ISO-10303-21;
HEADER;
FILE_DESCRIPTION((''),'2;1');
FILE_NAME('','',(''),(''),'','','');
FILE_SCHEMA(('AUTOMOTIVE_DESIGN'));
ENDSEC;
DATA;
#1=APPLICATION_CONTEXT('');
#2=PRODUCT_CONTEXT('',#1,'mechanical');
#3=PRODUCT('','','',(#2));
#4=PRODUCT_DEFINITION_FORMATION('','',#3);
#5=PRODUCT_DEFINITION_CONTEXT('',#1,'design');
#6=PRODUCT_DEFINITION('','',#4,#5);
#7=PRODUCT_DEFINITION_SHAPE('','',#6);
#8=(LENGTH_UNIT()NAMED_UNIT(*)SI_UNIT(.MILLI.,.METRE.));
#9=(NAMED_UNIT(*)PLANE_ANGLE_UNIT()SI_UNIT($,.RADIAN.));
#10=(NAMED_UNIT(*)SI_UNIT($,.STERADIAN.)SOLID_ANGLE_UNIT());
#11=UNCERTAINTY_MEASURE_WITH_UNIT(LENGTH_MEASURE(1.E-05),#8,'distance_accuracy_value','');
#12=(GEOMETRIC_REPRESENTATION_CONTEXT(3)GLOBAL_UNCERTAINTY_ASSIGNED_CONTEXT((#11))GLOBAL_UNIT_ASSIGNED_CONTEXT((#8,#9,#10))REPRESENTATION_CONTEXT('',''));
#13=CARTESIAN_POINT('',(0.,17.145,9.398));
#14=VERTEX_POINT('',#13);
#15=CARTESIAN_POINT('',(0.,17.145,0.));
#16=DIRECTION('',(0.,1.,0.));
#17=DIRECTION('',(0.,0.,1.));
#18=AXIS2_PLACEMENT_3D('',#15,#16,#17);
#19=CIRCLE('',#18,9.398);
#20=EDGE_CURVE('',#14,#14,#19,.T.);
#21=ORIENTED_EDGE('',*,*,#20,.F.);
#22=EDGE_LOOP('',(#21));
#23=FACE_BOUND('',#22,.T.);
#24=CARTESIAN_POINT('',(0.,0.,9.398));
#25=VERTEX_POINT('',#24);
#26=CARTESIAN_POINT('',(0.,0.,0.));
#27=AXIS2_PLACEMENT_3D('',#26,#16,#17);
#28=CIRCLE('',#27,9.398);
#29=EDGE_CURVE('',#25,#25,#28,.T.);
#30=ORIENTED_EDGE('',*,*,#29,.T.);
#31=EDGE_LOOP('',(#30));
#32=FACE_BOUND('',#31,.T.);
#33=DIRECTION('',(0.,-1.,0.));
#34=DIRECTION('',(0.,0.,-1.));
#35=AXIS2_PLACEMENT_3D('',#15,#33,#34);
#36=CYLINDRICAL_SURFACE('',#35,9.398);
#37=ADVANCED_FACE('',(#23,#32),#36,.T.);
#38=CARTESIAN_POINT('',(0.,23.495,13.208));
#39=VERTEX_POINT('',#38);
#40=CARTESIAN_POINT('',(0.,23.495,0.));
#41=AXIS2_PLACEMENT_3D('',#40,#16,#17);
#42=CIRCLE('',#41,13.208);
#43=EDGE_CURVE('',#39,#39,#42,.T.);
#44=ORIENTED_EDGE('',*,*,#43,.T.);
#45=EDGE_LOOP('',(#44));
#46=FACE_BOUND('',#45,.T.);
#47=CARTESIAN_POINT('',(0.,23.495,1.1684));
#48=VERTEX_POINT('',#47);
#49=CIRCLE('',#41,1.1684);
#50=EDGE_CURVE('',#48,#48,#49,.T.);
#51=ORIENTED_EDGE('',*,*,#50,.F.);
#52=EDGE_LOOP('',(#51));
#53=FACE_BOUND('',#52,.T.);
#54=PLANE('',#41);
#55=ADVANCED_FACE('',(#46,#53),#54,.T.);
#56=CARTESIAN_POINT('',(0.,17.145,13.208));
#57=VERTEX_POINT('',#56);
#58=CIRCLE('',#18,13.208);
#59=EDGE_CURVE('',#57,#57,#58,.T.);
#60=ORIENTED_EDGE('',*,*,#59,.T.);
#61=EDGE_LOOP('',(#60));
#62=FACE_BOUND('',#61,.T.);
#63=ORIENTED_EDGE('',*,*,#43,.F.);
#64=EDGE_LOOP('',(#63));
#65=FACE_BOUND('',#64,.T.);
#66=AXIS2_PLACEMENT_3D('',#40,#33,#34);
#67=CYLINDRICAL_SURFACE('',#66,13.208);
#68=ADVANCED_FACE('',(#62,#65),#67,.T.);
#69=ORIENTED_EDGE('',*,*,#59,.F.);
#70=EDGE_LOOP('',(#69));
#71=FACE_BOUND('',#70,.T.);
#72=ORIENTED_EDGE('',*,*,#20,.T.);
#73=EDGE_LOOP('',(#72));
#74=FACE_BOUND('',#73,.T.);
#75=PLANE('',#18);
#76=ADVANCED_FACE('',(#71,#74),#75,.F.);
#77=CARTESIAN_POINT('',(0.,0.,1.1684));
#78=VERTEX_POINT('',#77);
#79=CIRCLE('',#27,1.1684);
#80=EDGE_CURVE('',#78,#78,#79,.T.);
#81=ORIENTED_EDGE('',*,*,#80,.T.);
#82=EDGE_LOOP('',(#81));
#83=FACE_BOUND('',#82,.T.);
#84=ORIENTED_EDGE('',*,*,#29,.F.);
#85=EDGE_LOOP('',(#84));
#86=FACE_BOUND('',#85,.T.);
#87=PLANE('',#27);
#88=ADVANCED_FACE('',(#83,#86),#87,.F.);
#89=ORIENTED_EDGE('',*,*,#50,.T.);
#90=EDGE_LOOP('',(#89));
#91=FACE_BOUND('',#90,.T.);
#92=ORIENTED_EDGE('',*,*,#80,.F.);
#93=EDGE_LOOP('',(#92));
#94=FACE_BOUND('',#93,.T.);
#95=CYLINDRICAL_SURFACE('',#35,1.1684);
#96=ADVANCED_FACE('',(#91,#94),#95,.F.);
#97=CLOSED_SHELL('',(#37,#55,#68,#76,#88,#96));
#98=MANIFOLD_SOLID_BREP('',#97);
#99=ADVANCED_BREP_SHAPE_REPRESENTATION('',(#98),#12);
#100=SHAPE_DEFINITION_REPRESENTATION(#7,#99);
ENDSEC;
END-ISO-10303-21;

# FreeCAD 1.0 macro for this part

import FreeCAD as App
import Part
import Sketcher
Q = App.Units.Quantity

doc = App.newDocument("Part")
params = doc.addObject("Spreadsheet::Sheet", "Params")
for row, (alias, value) in enumerate([
    ("sketch1_diameter", "0.74 in"),
    ("sketch1_diameter2", "0.092 in"),
    ("pad1_length", "0.675 in"),
    ("sketch2_diameter", "1.04 in"),
    ("sketch2_diameter2", "0.092 in"),
    ("pad2_length", "0.25 in"),
], start=1):
    params.set(f"A{row}", alias)
    params.set(f"B{row}", "=" + value)
    params.setAlias(f"B{row}", alias)

body = doc.addObject("PartDesign::Body", "Body")

# Sketch on XZ plane
sketch1 = body.newObject("Sketcher::SketchObject", "Sketch")
sketch1.AttachmentSupport = (doc.getObject("XZ_Plane"), [""])
sketch1.MapMode = "FlatFace"
sketch1.addGeometry([
    Part.Circle(App.Vector(0, 0, 0), App.Vector(0, 0, 1), 9.398),
    Part.Circle(App.Vector(0, 0, 0), App.Vector(0, 0, 1), 1.1684),
], False)
sketch1.addConstraint([
    Sketcher.Constraint("Coincident", 0, 3, -1, 1),
    Sketcher.Constraint("Coincident", 1, 3, -1, 1),
    Sketcher.Constraint("Diameter", 0, Q("0.74 in")),
    Sketcher.Constraint("Diameter", 1, Q("0.092 in")),
])
sketch1.setExpression("Constraints[2]", "Params.sketch1_diameter")
sketch1.setExpression("Constraints[3]", "Params.sketch1_diameter2")
pad1 = body.newObject("PartDesign::Pad", "Pad")
pad1.Profile = sketch1
pad1.setExpression("Length", "Params.pad1_length")
pad1.Reversed = True

# Sketch on XZ plane
sketch2 = body.newObject("Sketcher::SketchObject", "Sketch001")
sketch2.AttachmentSupport = (doc.getObject("XZ_Plane"), [""])
sketch2.MapMode = "FlatFace"
sketch2.AttachmentOffset = App.Placement(App.Vector(0, 0, -0.675 * 25.4), App.Rotation())
sketch2.addGeometry([
    Part.Circle(App.Vector(0, 0, 0), App.Vector(0, 0, 1), 13.208),
    Part.Circle(App.Vector(0, 0, 0), App.Vector(0, 0, 1), 1.1684),
], False)
sketch2.addConstraint([
    Sketcher.Constraint("Coincident", 0, 3, -1, 1),
    Sketcher.Constraint("Coincident", 1, 3, -1, 1),
    Sketcher.Constraint("Diameter", 0, Q("1.04 in")),
    Sketcher.Constraint("Diameter", 1, Q("0.092 in")),
])
sketch2.setExpression("Constraints[2]", "Params.sketch2_diameter")
sketch2.setExpression("Constraints[3]", "Params.sketch2_diameter2")
pad2 = body.newObject("PartDesign::Pad", "Pad001")
pad2.Profile = sketch2
pad2.setExpression("Length", "Params.pad2_length")
pad2.Reversed = True

doc.recompute()
